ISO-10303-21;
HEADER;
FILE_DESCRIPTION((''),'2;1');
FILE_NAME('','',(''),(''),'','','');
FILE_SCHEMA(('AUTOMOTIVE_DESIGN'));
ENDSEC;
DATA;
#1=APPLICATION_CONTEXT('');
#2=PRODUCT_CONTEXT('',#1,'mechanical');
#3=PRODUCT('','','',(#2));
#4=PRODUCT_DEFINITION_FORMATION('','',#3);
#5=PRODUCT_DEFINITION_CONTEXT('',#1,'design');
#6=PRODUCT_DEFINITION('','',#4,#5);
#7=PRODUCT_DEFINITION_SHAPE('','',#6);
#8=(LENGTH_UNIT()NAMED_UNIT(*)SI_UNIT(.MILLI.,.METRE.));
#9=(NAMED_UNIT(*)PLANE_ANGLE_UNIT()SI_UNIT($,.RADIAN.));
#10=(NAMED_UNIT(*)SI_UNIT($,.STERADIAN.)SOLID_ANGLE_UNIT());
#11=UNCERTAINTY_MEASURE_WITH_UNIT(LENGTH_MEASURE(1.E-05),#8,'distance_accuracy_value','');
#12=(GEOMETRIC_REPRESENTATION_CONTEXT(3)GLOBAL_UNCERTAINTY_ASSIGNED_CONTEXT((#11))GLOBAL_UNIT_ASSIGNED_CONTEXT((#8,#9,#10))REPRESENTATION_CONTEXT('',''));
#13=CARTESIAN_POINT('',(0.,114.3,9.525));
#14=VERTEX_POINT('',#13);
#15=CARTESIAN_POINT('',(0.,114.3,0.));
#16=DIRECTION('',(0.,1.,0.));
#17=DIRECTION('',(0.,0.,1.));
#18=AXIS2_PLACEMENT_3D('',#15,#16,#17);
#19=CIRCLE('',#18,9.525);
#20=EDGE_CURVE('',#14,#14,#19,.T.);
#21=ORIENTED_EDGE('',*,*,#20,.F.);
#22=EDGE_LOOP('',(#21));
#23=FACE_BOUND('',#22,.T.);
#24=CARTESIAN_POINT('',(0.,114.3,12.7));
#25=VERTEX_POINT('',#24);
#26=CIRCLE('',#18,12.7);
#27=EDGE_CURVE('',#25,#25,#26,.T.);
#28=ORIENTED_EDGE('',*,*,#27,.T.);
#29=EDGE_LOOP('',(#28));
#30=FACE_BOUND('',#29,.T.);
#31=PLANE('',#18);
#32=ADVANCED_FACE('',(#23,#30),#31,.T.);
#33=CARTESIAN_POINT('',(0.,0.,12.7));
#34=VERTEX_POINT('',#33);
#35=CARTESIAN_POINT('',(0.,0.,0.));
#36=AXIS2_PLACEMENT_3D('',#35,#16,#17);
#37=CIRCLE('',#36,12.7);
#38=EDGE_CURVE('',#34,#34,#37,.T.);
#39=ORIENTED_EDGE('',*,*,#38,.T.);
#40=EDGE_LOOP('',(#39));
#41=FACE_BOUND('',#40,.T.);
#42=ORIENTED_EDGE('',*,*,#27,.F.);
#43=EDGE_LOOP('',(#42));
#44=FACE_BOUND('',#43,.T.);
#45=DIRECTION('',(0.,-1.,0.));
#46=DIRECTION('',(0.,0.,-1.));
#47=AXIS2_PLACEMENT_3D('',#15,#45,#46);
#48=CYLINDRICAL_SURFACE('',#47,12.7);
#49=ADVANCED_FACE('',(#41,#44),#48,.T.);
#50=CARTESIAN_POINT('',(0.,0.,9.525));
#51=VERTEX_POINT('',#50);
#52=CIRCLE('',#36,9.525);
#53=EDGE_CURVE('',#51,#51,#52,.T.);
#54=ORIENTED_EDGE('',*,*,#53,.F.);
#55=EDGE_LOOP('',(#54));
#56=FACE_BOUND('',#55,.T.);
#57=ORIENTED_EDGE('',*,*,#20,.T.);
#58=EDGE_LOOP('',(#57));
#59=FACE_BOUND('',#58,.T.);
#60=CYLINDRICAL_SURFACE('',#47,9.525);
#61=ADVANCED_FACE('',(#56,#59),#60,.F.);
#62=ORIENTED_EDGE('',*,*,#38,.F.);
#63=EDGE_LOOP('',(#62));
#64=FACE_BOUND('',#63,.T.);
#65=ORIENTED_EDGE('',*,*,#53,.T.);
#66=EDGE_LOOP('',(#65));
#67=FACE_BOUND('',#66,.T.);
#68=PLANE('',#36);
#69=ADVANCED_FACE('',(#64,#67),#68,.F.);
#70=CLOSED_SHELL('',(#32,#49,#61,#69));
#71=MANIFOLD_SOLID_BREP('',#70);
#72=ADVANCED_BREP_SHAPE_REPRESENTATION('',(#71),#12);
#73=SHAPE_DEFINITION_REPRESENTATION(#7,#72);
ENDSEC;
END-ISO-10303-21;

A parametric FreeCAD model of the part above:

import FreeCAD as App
import Part
import Sketcher

V = App.Vector
Q = App.Units.Quantity

doc = App.newDocument("Part")
body = doc.addObject("PartDesign::Body", "Body")

# Sketch on XZ plane
sketch1 = doc.addObject("Sketcher::SketchObject", "Sketch")
body.addObject(sketch1)
sketch1.AttachmentSupport = (doc.XZ_Plane, [""])
sketch1.MapMode = "FlatFace"
sketch1.addGeometry(Part.Circle(V(0, 0, 0), V(0, 0, 1), 13), False)
sketch1.addGeometry(Part.Circle(V(0, 0, 0), V(0, 0, 1), 10), False)
sketch1.addConstraint(Sketcher.Constraint("Coincident", 0, 3, -1, 1))
sketch1.addConstraint(Sketcher.Constraint("Coincident", 1, 3, -1, 1))
sketch1.addConstraint(Sketcher.Constraint("Diameter", 0, Q("1 in")))
sketch1.addConstraint(Sketcher.Constraint("Diameter", 1, Q("0.75 in")))
pad1 = doc.addObject("PartDesign::Pad", "Pad")
body.addObject(pad1)
pad1.Profile = sketch1
pad1.Length = Q("4.5 in")
pad1.Reversed = True

doc.recompute()
